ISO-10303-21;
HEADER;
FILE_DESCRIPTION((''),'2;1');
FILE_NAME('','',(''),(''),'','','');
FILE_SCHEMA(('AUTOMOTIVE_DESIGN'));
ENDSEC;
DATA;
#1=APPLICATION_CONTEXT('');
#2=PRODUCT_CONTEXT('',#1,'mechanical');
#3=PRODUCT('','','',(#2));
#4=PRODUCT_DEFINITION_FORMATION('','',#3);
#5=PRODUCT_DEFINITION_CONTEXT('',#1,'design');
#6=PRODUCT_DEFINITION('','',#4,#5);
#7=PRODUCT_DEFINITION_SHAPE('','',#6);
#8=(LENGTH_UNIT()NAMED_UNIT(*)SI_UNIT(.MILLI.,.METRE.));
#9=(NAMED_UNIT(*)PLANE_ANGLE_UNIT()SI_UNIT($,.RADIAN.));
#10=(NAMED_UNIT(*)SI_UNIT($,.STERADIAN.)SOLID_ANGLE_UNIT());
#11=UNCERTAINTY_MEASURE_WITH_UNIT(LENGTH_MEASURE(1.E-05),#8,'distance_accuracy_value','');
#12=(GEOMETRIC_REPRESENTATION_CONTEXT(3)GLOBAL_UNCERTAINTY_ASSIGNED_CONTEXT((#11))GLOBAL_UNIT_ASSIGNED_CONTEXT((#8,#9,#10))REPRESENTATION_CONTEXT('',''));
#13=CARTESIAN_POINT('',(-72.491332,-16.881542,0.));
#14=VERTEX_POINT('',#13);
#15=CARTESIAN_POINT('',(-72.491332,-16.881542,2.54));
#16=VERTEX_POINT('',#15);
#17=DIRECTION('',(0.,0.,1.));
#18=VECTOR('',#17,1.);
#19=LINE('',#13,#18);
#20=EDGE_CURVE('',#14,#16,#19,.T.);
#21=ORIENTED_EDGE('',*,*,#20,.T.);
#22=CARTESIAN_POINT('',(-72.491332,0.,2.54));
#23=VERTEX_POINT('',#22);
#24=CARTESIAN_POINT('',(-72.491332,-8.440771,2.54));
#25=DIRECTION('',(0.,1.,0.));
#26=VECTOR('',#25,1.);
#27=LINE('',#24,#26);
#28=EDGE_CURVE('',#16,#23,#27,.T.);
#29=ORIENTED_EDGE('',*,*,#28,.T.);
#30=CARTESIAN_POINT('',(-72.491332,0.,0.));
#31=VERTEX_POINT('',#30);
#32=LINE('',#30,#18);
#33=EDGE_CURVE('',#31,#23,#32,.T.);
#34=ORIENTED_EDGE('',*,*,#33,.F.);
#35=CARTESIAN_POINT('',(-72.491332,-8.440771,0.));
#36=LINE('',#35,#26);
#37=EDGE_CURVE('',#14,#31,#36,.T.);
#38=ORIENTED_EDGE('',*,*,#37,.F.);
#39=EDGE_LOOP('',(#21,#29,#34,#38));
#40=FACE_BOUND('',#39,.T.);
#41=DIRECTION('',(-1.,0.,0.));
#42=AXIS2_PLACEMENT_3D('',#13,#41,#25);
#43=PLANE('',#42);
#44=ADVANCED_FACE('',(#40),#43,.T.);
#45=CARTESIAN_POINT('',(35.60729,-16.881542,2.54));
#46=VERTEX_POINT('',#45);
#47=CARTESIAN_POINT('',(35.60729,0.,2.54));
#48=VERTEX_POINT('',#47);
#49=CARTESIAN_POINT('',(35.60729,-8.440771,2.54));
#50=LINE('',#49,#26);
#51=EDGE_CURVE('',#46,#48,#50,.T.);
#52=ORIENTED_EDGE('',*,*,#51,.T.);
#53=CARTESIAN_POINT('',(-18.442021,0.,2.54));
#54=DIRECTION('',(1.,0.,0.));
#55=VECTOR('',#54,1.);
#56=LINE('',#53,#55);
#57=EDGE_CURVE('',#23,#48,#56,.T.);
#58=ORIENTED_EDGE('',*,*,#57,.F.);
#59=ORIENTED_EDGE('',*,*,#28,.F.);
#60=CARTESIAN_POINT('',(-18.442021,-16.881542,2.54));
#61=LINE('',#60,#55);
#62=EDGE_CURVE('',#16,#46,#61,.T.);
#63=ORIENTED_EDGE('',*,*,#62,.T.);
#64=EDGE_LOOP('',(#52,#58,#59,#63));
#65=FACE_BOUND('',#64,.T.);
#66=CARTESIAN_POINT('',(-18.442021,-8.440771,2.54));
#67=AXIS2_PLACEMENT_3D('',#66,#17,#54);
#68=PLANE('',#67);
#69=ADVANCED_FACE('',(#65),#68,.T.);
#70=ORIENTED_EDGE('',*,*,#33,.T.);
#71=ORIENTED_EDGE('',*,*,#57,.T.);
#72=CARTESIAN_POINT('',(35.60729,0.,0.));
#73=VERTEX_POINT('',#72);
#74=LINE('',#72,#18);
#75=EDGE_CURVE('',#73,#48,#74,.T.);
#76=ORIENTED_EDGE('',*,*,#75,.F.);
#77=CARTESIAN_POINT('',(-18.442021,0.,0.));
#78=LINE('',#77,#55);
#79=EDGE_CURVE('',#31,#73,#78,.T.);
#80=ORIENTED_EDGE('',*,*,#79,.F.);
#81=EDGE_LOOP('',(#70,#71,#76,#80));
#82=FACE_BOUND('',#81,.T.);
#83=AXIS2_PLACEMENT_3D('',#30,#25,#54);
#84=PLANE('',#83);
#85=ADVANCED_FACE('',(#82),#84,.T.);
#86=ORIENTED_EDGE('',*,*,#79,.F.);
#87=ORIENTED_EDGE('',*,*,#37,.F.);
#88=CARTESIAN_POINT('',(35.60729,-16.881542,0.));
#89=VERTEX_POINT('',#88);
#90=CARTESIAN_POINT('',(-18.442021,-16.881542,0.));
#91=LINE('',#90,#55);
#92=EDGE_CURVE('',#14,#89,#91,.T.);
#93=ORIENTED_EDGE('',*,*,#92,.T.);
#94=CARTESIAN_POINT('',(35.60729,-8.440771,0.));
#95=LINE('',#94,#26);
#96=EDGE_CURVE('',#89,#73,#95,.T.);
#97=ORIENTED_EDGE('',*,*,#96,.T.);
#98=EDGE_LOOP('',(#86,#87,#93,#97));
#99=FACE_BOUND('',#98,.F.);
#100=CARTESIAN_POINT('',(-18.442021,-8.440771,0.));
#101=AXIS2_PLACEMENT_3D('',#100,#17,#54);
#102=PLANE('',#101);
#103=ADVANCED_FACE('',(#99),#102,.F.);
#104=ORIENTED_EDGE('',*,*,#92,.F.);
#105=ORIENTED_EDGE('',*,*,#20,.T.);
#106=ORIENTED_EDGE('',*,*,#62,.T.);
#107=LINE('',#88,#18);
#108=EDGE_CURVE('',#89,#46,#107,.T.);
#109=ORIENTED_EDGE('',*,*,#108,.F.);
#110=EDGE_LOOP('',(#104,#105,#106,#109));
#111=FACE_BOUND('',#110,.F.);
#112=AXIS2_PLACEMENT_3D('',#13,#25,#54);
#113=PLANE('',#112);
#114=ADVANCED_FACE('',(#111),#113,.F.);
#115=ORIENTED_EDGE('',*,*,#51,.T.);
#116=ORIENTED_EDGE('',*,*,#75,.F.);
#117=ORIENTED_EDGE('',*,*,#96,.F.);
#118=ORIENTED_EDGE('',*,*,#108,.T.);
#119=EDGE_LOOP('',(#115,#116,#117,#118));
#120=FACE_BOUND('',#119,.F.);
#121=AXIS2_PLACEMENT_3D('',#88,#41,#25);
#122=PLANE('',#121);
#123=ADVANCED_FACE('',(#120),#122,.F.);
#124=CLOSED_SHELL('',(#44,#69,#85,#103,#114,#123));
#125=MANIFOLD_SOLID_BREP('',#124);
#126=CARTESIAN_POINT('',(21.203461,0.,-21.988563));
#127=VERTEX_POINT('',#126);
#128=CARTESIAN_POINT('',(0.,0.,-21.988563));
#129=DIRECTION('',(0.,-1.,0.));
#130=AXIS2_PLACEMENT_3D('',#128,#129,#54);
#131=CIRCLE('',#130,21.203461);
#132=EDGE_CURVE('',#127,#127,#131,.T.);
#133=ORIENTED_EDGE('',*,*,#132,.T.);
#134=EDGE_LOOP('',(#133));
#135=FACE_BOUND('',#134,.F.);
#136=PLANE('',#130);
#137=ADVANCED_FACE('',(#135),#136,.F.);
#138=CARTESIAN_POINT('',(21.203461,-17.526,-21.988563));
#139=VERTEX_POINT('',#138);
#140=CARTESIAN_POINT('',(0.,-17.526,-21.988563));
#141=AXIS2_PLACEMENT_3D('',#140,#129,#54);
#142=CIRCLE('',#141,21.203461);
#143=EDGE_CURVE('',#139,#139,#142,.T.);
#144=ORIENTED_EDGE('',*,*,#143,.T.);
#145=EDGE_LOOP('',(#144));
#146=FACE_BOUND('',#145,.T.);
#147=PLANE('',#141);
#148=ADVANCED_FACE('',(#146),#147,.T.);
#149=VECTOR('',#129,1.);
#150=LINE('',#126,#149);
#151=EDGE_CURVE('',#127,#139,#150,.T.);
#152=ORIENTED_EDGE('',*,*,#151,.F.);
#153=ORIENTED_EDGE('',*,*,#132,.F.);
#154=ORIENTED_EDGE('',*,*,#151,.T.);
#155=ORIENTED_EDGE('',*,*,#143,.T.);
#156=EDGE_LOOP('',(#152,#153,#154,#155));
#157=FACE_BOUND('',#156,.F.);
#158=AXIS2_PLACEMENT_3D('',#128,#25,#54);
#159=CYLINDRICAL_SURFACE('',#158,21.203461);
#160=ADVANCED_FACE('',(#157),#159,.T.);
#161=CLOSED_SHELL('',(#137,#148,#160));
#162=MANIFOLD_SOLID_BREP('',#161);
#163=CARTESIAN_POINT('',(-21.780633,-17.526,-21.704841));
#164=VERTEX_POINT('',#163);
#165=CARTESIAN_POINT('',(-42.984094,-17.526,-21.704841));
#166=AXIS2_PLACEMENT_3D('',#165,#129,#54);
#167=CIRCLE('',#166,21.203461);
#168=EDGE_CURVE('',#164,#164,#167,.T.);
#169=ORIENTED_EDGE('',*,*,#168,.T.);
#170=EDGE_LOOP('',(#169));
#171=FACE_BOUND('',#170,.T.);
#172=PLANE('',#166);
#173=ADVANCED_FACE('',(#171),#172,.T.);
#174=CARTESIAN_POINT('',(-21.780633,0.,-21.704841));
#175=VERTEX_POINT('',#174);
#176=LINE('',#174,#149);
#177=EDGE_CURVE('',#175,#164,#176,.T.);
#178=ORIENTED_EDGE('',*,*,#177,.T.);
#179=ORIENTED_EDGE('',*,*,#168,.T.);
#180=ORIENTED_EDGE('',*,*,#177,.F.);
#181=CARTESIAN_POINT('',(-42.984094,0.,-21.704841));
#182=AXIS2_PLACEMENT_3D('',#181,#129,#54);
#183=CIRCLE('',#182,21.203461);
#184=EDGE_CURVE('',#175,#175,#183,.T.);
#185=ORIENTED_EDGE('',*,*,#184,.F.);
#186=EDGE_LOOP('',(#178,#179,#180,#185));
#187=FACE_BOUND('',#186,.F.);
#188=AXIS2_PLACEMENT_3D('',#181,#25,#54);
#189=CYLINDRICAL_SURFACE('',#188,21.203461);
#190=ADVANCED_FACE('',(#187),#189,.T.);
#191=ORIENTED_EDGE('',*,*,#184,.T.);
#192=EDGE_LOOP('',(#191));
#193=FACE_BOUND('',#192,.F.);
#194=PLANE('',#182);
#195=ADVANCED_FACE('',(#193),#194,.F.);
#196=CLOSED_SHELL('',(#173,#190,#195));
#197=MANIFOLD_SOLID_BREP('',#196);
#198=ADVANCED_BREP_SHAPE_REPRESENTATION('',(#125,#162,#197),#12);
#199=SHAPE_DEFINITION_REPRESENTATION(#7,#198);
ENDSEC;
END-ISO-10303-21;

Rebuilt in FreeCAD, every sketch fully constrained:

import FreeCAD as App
import Part
import Sketcher
Q = App.Units.Quantity


def add_polygon(sketch, points):
    """Adds a closed chain of lines whose ends are joined by coincident constraints."""
    first, n = sketch.GeometryCount, len(points)
    for a, b in zip(points, points[1:] + points[:1]):
        sketch.addGeometry(Part.LineSegment(App.Vector(*a, 0), App.Vector(*b, 0)), False)
    for i in range(n):
        sketch.addConstraint(Sketcher.Constraint("Coincident", first + i, 2, first + (i + 1) % n, 1))

doc = App.newDocument("Part")
body = doc.addObject("PartDesign::Body", "Body")

# Sketch on XY plane
sketch1 = body.newObject("Sketcher::SketchObject", "Sketch")
sketch1.AttachmentSupport = (doc.getObject("XY_Plane"), [""])
sketch1.MapMode = "FlatFace"
add_polygon(sketch1, [(-72, 0), (-72, -17), (36, -17), (36, 0)])  # lines 0-3
sketch1.addConstraint(Sketcher.Constraint("Vertical", 0))
sketch1.addConstraint(Sketcher.Constraint("Horizontal", 1))
sketch1.addConstraint(Sketcher.Constraint("Vertical", 2))
sketch1.addConstraint(Sketcher.Constraint("Horizontal", 3))
sketch1.addConstraint(Sketcher.Constraint("PointOnObject", 2, 2, -1))
sketch1.addConstraint(Sketcher.Constraint("DistanceY", 0, 2, 0, 1, Q("16.881542 mm")))
sketch1.addConstraint(Sketcher.Constraint("DistanceX", 1, 1, 1, 2, Q("108.098623 mm")))
sketch1.addConstraint(Sketcher.Constraint("DistanceX", -1, 1, 1, 2, Q("35.60729 mm")))
pad1 = body.newObject("PartDesign::Pad", "Pad")
pad1.Profile = sketch1
pad1.Length = Q("0.1 in")
body2 = doc.addObject("PartDesign::Body", "Body001")
body2.AllowCompound = True

# Sketch on XZ plane
sketch2 = body2.newObject("Sketcher::SketchObject", "Sketch001")
sketch2.AttachmentSupport = (doc.getObject("XZ_Plane001"), [""])
sketch2.MapMode = "FlatFace"
sketch2.addGeometry(Part.Circle(App.Vector(-43, -22, 0), App.Vector(0, 0, 1), 21), False)
sketch2.addGeometry(Part.Circle(App.Vector(0, -22, 0), App.Vector(0, 0, 1), 21), False)
sketch2.addConstraint(Sketcher.Constraint("Equal", 0, 1))
sketch2.addConstraint(Sketcher.Constraint("PointOnObject", 1, 3, -2))
sketch2.addConstraint(Sketcher.Constraint("Diameter", 0, Q("42.406922 mm")))
sketch2.addConstraint(Sketcher.Constraint("DistanceY", 0, 3, -1, 1, Q("21.704841 mm")))
sketch2.addConstraint(Sketcher.Constraint("DistanceX", 0, 3, -1, 1, Q("42.984094 mm")))
sketch2.addConstraint(Sketcher.Constraint("DistanceY", 1, 3, -1, 1, Q("21.988563 mm")))
pad2 = body2.newObject("PartDesign::Pad", "Pad001")
pad2.Profile = sketch2
pad2.Length = Q("0.69 in")

doc.recompute()
